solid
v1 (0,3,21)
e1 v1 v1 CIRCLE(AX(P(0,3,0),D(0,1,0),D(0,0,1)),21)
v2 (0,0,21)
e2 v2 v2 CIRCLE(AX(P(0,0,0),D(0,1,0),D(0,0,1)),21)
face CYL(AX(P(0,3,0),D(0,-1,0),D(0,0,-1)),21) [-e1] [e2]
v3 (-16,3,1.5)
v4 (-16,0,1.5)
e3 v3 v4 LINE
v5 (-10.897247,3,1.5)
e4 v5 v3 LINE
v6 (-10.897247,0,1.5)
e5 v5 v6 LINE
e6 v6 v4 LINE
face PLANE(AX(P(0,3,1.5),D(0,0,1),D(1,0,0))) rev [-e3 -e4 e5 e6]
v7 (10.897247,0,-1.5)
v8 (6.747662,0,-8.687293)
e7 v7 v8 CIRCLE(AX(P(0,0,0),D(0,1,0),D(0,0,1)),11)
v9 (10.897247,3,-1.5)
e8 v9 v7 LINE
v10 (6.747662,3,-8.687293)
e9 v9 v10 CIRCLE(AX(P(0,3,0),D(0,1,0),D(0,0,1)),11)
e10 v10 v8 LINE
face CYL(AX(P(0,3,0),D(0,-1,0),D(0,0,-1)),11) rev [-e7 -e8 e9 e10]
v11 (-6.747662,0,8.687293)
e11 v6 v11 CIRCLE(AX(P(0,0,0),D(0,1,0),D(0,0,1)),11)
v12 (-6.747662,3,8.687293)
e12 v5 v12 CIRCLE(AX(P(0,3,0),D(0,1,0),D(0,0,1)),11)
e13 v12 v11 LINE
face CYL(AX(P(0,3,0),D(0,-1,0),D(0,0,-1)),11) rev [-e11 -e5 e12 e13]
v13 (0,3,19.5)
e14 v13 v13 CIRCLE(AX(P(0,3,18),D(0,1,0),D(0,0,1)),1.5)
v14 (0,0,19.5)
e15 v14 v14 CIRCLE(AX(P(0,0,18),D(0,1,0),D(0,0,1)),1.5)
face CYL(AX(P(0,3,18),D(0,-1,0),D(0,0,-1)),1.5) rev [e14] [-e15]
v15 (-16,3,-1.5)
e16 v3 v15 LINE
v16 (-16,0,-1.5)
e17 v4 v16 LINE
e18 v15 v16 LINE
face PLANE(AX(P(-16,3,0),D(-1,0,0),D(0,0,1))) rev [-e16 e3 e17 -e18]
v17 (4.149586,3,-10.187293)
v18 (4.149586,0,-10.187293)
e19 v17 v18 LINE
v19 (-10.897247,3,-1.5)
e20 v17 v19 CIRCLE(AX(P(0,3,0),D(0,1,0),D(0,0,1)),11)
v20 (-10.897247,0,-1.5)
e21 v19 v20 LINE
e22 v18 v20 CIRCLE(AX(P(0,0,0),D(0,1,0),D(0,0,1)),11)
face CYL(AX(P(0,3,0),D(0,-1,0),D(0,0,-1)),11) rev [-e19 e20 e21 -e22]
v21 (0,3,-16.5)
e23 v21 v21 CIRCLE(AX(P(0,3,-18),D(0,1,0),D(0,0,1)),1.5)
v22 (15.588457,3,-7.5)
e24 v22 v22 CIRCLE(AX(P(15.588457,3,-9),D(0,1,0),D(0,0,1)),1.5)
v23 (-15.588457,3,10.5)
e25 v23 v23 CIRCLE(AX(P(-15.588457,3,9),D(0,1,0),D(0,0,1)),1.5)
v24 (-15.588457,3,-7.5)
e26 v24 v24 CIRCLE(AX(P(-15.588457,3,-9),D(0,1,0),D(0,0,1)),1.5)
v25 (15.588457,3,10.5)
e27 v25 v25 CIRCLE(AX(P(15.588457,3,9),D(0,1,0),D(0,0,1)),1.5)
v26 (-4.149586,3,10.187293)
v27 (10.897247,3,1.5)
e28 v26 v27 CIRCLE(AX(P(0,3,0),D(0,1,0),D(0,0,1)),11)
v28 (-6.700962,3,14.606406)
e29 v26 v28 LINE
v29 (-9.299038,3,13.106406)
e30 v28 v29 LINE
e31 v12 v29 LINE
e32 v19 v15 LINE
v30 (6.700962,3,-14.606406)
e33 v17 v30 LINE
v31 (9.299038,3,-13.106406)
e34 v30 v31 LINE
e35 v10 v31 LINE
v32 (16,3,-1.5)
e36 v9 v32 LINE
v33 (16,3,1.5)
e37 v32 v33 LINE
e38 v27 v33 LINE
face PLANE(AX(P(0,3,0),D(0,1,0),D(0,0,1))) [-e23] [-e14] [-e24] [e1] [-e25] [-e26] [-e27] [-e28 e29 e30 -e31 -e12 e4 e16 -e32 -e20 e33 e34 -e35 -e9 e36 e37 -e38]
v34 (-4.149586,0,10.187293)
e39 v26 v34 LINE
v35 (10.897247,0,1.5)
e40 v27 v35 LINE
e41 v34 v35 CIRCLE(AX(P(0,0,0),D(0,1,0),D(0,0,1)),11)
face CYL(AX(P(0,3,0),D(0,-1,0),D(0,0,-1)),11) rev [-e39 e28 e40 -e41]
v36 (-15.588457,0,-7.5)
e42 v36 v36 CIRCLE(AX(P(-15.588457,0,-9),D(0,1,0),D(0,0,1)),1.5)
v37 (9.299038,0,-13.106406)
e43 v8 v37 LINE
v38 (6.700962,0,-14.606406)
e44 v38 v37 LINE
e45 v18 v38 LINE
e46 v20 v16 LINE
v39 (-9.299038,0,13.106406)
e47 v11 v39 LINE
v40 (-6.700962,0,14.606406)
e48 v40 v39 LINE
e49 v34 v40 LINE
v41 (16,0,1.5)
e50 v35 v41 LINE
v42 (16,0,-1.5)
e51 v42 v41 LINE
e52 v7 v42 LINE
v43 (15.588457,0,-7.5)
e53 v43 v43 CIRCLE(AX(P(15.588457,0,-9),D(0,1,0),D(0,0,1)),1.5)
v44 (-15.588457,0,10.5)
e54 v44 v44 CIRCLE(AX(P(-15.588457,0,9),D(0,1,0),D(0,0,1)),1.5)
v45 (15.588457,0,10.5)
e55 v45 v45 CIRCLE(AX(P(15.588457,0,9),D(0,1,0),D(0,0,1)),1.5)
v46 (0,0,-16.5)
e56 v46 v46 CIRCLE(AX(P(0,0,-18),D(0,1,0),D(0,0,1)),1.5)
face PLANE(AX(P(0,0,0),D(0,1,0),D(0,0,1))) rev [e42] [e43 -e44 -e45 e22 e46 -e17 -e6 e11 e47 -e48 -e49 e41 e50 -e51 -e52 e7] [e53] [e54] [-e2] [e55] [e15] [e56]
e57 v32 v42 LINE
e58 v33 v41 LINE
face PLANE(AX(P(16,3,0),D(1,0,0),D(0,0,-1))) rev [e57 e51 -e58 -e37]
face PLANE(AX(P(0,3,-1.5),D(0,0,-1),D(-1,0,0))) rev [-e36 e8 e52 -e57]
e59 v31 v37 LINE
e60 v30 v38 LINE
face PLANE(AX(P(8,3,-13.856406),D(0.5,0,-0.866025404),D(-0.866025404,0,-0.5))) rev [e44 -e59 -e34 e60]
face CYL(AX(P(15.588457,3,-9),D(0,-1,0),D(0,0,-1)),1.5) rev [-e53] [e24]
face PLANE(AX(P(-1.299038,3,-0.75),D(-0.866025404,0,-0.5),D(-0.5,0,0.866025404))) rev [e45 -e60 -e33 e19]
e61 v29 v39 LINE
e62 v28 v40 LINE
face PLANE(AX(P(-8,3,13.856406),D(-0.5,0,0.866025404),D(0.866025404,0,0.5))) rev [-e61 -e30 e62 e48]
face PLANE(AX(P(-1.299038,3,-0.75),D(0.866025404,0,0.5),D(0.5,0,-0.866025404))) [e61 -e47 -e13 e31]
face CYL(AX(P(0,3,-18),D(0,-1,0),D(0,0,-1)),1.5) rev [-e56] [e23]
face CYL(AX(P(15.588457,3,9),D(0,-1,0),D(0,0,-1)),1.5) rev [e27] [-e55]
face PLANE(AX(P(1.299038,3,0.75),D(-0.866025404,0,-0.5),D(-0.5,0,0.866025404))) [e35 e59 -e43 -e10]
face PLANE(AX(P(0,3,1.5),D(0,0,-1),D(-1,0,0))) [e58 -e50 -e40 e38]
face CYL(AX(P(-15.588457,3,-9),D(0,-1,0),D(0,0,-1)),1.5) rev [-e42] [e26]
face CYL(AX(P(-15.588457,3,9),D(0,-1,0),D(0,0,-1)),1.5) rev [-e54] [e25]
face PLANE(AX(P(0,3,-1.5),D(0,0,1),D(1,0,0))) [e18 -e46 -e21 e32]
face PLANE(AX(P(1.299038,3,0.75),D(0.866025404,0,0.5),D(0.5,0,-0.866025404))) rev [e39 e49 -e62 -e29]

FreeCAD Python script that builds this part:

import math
import FreeCAD as App
import Part
import Sketcher
Q = App.Units.Quantity

doc = App.newDocument("Part")
body = doc.addObject("PartDesign::Body", "Body")

# Sketch on XZ plane
sketch1 = body.newObject("Sketcher::SketchObject", "Sketch")
sketch1.AttachmentSupport = (doc.getObject("XZ_Plane"), [""])
sketch1.MapMode = "FlatFace"
sketch1.addGeometry([
    Part.Circle(App.Vector(0, 0, 0), App.Vector(0, 0, 1), 21),  # 0
    Part.Circle(App.Vector(-15.6, -9, 0), App.Vector(0, 0, 1), 1.5),  # 1
    Part.Circle(App.Vector(0, -18, 0), App.Vector(0, 0, 1), 1.5),  # 2
    Part.Circle(App.Vector(-15.6, 9, 0), App.Vector(0, 0, 1), 1.5),  # 3
    Part.Circle(App.Vector(15.6, -9, 0), App.Vector(0, 0, 1), 1.5),  # 4
    Part.ArcOfCircle(Part.Circle(App.Vector(0, 0, 0), App.Vector(0, 0, 1), 11), math.radians(-172), math.radians(-68)),  # 5
    Part.LineSegment(App.Vector(4.1, -10.2, 0), App.Vector(6.7, -14.6, 0)),  # 6
    Part.LineSegment(App.Vector(6.7, -14.6, 0), App.Vector(9.3, -13.1, 0)),  # 7
    Part.LineSegment(App.Vector(9.3, -13.1, 0), App.Vector(6.7, -8.7, 0)),  # 8
    Part.ArcOfCircle(Part.Circle(App.Vector(0, 0, 0), App.Vector(0, 0, 1), 11), math.radians(-52), math.radians(-8)),  # 9
    Part.LineSegment(App.Vector(10.9, -1.5, 0), App.Vector(16, -1.5, 0)),  # 10
    Part.LineSegment(App.Vector(16, -1.5, 0), App.Vector(16, 1.5, 0)),  # 11
    Part.LineSegment(App.Vector(16, 1.5, 0), App.Vector(10.9, 1.5, 0)),  # 12
    Part.ArcOfCircle(Part.Circle(App.Vector(0, 0, 0), App.Vector(0, 0, 1), 11), math.radians(8), math.radians(112)),  # 13
    Part.LineSegment(App.Vector(-4.1, 10.2, 0), App.Vector(-6.7, 14.6, 0)),  # 14
    Part.LineSegment(App.Vector(-6.7, 14.6, 0), App.Vector(-9.3, 13.1, 0)),  # 15
    Part.LineSegment(App.Vector(-9.3, 13.1, 0), App.Vector(-6.7, 8.7, 0)),  # 16
    Part.ArcOfCircle(Part.Circle(App.Vector(0, 0, 0), App.Vector(0, 0, 1), 11), math.radians(128), math.radians(172)),  # 17
    Part.LineSegment(App.Vector(-10.9, 1.5, 0), App.Vector(-16, 1.5, 0)),  # 18
    Part.LineSegment(App.Vector(-16, 1.5, 0), App.Vector(-16, -1.5, 0)),  # 19
    Part.LineSegment(App.Vector(-16, -1.5, 0), App.Vector(-10.9, -1.5, 0)),  # 20
    Part.Circle(App.Vector(0, 18, 0), App.Vector(0, 0, 1), 1.5),  # 21
    Part.Circle(App.Vector(15.6, 9, 0), App.Vector(0, 0, 1), 1.5),  # 22
], False)
sketch1.addConstraint([
    Sketcher.Constraint("Coincident", 5, 2, 6, 1),
    Sketcher.Constraint("Coincident", 6, 2, 7, 1),
    Sketcher.Constraint("Coincident", 7, 2, 8, 1),
    Sketcher.Constraint("Coincident", 8, 2, 9, 1),
    Sketcher.Constraint("Coincident", 9, 2, 10, 1),
    Sketcher.Constraint("Coincident", 10, 2, 11, 1),
    Sketcher.Constraint("Coincident", 11, 2, 12, 1),
    Sketcher.Constraint("Coincident", 12, 2, 13, 1),
    Sketcher.Constraint("Coincident", 13, 2, 14, 1),
    Sketcher.Constraint("Coincident", 14, 2, 15, 1),
    Sketcher.Constraint("Coincident", 15, 2, 16, 1),
    Sketcher.Constraint("Coincident", 16, 2, 17, 1),
    Sketcher.Constraint("Coincident", 17, 2, 18, 1),
    Sketcher.Constraint("Coincident", 18, 2, 19, 1),
    Sketcher.Constraint("Coincident", 19, 2, 20, 1),
    Sketcher.Constraint("Coincident", 20, 2, 5, 1),
    Sketcher.Constraint("Horizontal", 10),
    Sketcher.Constraint("Vertical", 11),
    Sketcher.Constraint("Horizontal", 12),
    Sketcher.Constraint("Horizontal", 18),
    Sketcher.Constraint("Vertical", 19),
    Sketcher.Constraint("Horizontal", 20),
    Sketcher.Constraint("Coincident", 0, 3, -1, 1),
    Sketcher.Constraint("Coincident", 5, 3, -1, 1),
    Sketcher.Constraint("Coincident", 9, 3, -1, 1),
    Sketcher.Constraint("Coincident", 13, 3, -1, 1),
    Sketcher.Constraint("Coincident", 17, 3, -1, 1),
    Sketcher.Constraint("Equal", 1, 2),
    Sketcher.Constraint("Equal", 2, 3),
    Sketcher.Constraint("Equal", 3, 4),
    Sketcher.Constraint("Equal", 5, 9),
    Sketcher.Constraint("Equal", 9, 13),
    Sketcher.Constraint("Equal", 13, 17),
    Sketcher.Constraint("Equal", 4, 21),
    Sketcher.Constraint("Equal", 21, 22),
    Sketcher.Constraint("Symmetric", 3, 3, 4, 3, -1, 1),
    Sketcher.Constraint("Symmetric", 2, 3, 21, 3, -1, 1),
    Sketcher.Constraint("Symmetric", 1, 3, 22, 3, -1, 1),
    Sketcher.Constraint("Symmetric", 6, 2, 14, 2, -1, 1),
    Sketcher.Constraint("Symmetric", 7, 2, 15, 2, -1, 1),
    Sketcher.Constraint("Symmetric", 10, 2, 18, 2, -1, 1),
    Sketcher.Constraint("Symmetric", 1, 3, 4, 3, -2),
    Sketcher.Constraint("PointOnObject", 2, 3, -2),
    Sketcher.Constraint("Perpendicular", 6, 7),
    Sketcher.Constraint("Perpendicular", 7, 8),
    Sketcher.Constraint("Parallel", 8, 14),
    Sketcher.Constraint("Perpendicular", 15, 16),
    Sketcher.Constraint("Horizontal", 12, 2, 17, 2),
    Sketcher.Constraint("Horizontal", 10, 2, 19, 2),
    Sketcher.Constraint("Equal", 6, 8),
    Sketcher.Constraint("Diameter", 0, 42.0),
    Sketcher.Constraint("Diameter", 1, 3.0),
    Sketcher.Constraint("Radius", 5, 11.0),
    Sketcher.Constraint("DistanceY", 11, 1, 11, 2, 3.0),
    Sketcher.Constraint("Angle", 6, Q("-60 deg")),
    Sketcher.Constraint("Distance", 7, 3.0),
    Sketcher.Constraint("DistanceY", 1, 3, -1, 1, 9.0),
    Sketcher.Constraint("DistanceY", 2, 3, -1, 1, 18.0),
    Sketcher.Constraint("DistanceX", -1, 1, 10, 2, 16.0),
    Sketcher.Constraint("DistanceX", 6, 2, 8, 2, 0.0467),
    Sketcher.Constraint("DistanceX", 7, 2, 4, 3, 6.289419),
])
pad1 = body.newObject("PartDesign::Pad", "Pad")
pad1.Profile = sketch1
pad1.Length = 3
pad1.Reversed = True

doc.recompute()
